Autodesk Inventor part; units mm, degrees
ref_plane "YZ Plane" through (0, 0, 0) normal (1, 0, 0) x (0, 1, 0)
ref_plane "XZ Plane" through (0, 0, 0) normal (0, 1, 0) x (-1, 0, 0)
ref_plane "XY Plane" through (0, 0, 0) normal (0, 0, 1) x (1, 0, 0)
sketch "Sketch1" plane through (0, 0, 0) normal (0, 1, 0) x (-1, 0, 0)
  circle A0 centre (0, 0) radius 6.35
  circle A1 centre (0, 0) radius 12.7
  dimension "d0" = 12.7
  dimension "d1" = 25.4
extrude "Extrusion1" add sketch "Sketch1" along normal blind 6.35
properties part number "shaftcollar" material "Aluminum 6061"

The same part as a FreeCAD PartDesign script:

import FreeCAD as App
import Part
import Sketcher
Q = App.Units.Quantity

doc = App.newDocument("Part")
body = doc.addObject("PartDesign::Body", "Body")

sketch1 = body.newObject("Sketcher::SketchObject", "Sketch")
sketch1.AttachmentSupport = (doc.getObject("XZ_Plane"), [""])
sketch1.MapMode = "FlatFace"
sketch1.addGeometry(Part.Circle(App.Vector(0, 0, 0), App.Vector(0, 0, 1), 12.7), False)
sketch1.addGeometry(Part.Circle(App.Vector(0, 0, 0), App.Vector(0, 0, 1), 6.35), False)
sketch1.addConstraint(Sketcher.Constraint("Coincident", 0, 3, -1, 1))
sketch1.addConstraint(Sketcher.Constraint("Coincident", 1, 3, -1, 1))
sketch1.addConstraint(Sketcher.Constraint("Diameter", 0, Q("1 in")))
sketch1.addConstraint(Sketcher.Constraint("Diameter", 1, Q("0.5 in")))
pad1 = body.newObject("PartDesign::Pad", "Pad")
pad1.Profile = sketch1
pad1.Length = Q("0.25 in")
pad1.Reversed = True

doc.recompute()
